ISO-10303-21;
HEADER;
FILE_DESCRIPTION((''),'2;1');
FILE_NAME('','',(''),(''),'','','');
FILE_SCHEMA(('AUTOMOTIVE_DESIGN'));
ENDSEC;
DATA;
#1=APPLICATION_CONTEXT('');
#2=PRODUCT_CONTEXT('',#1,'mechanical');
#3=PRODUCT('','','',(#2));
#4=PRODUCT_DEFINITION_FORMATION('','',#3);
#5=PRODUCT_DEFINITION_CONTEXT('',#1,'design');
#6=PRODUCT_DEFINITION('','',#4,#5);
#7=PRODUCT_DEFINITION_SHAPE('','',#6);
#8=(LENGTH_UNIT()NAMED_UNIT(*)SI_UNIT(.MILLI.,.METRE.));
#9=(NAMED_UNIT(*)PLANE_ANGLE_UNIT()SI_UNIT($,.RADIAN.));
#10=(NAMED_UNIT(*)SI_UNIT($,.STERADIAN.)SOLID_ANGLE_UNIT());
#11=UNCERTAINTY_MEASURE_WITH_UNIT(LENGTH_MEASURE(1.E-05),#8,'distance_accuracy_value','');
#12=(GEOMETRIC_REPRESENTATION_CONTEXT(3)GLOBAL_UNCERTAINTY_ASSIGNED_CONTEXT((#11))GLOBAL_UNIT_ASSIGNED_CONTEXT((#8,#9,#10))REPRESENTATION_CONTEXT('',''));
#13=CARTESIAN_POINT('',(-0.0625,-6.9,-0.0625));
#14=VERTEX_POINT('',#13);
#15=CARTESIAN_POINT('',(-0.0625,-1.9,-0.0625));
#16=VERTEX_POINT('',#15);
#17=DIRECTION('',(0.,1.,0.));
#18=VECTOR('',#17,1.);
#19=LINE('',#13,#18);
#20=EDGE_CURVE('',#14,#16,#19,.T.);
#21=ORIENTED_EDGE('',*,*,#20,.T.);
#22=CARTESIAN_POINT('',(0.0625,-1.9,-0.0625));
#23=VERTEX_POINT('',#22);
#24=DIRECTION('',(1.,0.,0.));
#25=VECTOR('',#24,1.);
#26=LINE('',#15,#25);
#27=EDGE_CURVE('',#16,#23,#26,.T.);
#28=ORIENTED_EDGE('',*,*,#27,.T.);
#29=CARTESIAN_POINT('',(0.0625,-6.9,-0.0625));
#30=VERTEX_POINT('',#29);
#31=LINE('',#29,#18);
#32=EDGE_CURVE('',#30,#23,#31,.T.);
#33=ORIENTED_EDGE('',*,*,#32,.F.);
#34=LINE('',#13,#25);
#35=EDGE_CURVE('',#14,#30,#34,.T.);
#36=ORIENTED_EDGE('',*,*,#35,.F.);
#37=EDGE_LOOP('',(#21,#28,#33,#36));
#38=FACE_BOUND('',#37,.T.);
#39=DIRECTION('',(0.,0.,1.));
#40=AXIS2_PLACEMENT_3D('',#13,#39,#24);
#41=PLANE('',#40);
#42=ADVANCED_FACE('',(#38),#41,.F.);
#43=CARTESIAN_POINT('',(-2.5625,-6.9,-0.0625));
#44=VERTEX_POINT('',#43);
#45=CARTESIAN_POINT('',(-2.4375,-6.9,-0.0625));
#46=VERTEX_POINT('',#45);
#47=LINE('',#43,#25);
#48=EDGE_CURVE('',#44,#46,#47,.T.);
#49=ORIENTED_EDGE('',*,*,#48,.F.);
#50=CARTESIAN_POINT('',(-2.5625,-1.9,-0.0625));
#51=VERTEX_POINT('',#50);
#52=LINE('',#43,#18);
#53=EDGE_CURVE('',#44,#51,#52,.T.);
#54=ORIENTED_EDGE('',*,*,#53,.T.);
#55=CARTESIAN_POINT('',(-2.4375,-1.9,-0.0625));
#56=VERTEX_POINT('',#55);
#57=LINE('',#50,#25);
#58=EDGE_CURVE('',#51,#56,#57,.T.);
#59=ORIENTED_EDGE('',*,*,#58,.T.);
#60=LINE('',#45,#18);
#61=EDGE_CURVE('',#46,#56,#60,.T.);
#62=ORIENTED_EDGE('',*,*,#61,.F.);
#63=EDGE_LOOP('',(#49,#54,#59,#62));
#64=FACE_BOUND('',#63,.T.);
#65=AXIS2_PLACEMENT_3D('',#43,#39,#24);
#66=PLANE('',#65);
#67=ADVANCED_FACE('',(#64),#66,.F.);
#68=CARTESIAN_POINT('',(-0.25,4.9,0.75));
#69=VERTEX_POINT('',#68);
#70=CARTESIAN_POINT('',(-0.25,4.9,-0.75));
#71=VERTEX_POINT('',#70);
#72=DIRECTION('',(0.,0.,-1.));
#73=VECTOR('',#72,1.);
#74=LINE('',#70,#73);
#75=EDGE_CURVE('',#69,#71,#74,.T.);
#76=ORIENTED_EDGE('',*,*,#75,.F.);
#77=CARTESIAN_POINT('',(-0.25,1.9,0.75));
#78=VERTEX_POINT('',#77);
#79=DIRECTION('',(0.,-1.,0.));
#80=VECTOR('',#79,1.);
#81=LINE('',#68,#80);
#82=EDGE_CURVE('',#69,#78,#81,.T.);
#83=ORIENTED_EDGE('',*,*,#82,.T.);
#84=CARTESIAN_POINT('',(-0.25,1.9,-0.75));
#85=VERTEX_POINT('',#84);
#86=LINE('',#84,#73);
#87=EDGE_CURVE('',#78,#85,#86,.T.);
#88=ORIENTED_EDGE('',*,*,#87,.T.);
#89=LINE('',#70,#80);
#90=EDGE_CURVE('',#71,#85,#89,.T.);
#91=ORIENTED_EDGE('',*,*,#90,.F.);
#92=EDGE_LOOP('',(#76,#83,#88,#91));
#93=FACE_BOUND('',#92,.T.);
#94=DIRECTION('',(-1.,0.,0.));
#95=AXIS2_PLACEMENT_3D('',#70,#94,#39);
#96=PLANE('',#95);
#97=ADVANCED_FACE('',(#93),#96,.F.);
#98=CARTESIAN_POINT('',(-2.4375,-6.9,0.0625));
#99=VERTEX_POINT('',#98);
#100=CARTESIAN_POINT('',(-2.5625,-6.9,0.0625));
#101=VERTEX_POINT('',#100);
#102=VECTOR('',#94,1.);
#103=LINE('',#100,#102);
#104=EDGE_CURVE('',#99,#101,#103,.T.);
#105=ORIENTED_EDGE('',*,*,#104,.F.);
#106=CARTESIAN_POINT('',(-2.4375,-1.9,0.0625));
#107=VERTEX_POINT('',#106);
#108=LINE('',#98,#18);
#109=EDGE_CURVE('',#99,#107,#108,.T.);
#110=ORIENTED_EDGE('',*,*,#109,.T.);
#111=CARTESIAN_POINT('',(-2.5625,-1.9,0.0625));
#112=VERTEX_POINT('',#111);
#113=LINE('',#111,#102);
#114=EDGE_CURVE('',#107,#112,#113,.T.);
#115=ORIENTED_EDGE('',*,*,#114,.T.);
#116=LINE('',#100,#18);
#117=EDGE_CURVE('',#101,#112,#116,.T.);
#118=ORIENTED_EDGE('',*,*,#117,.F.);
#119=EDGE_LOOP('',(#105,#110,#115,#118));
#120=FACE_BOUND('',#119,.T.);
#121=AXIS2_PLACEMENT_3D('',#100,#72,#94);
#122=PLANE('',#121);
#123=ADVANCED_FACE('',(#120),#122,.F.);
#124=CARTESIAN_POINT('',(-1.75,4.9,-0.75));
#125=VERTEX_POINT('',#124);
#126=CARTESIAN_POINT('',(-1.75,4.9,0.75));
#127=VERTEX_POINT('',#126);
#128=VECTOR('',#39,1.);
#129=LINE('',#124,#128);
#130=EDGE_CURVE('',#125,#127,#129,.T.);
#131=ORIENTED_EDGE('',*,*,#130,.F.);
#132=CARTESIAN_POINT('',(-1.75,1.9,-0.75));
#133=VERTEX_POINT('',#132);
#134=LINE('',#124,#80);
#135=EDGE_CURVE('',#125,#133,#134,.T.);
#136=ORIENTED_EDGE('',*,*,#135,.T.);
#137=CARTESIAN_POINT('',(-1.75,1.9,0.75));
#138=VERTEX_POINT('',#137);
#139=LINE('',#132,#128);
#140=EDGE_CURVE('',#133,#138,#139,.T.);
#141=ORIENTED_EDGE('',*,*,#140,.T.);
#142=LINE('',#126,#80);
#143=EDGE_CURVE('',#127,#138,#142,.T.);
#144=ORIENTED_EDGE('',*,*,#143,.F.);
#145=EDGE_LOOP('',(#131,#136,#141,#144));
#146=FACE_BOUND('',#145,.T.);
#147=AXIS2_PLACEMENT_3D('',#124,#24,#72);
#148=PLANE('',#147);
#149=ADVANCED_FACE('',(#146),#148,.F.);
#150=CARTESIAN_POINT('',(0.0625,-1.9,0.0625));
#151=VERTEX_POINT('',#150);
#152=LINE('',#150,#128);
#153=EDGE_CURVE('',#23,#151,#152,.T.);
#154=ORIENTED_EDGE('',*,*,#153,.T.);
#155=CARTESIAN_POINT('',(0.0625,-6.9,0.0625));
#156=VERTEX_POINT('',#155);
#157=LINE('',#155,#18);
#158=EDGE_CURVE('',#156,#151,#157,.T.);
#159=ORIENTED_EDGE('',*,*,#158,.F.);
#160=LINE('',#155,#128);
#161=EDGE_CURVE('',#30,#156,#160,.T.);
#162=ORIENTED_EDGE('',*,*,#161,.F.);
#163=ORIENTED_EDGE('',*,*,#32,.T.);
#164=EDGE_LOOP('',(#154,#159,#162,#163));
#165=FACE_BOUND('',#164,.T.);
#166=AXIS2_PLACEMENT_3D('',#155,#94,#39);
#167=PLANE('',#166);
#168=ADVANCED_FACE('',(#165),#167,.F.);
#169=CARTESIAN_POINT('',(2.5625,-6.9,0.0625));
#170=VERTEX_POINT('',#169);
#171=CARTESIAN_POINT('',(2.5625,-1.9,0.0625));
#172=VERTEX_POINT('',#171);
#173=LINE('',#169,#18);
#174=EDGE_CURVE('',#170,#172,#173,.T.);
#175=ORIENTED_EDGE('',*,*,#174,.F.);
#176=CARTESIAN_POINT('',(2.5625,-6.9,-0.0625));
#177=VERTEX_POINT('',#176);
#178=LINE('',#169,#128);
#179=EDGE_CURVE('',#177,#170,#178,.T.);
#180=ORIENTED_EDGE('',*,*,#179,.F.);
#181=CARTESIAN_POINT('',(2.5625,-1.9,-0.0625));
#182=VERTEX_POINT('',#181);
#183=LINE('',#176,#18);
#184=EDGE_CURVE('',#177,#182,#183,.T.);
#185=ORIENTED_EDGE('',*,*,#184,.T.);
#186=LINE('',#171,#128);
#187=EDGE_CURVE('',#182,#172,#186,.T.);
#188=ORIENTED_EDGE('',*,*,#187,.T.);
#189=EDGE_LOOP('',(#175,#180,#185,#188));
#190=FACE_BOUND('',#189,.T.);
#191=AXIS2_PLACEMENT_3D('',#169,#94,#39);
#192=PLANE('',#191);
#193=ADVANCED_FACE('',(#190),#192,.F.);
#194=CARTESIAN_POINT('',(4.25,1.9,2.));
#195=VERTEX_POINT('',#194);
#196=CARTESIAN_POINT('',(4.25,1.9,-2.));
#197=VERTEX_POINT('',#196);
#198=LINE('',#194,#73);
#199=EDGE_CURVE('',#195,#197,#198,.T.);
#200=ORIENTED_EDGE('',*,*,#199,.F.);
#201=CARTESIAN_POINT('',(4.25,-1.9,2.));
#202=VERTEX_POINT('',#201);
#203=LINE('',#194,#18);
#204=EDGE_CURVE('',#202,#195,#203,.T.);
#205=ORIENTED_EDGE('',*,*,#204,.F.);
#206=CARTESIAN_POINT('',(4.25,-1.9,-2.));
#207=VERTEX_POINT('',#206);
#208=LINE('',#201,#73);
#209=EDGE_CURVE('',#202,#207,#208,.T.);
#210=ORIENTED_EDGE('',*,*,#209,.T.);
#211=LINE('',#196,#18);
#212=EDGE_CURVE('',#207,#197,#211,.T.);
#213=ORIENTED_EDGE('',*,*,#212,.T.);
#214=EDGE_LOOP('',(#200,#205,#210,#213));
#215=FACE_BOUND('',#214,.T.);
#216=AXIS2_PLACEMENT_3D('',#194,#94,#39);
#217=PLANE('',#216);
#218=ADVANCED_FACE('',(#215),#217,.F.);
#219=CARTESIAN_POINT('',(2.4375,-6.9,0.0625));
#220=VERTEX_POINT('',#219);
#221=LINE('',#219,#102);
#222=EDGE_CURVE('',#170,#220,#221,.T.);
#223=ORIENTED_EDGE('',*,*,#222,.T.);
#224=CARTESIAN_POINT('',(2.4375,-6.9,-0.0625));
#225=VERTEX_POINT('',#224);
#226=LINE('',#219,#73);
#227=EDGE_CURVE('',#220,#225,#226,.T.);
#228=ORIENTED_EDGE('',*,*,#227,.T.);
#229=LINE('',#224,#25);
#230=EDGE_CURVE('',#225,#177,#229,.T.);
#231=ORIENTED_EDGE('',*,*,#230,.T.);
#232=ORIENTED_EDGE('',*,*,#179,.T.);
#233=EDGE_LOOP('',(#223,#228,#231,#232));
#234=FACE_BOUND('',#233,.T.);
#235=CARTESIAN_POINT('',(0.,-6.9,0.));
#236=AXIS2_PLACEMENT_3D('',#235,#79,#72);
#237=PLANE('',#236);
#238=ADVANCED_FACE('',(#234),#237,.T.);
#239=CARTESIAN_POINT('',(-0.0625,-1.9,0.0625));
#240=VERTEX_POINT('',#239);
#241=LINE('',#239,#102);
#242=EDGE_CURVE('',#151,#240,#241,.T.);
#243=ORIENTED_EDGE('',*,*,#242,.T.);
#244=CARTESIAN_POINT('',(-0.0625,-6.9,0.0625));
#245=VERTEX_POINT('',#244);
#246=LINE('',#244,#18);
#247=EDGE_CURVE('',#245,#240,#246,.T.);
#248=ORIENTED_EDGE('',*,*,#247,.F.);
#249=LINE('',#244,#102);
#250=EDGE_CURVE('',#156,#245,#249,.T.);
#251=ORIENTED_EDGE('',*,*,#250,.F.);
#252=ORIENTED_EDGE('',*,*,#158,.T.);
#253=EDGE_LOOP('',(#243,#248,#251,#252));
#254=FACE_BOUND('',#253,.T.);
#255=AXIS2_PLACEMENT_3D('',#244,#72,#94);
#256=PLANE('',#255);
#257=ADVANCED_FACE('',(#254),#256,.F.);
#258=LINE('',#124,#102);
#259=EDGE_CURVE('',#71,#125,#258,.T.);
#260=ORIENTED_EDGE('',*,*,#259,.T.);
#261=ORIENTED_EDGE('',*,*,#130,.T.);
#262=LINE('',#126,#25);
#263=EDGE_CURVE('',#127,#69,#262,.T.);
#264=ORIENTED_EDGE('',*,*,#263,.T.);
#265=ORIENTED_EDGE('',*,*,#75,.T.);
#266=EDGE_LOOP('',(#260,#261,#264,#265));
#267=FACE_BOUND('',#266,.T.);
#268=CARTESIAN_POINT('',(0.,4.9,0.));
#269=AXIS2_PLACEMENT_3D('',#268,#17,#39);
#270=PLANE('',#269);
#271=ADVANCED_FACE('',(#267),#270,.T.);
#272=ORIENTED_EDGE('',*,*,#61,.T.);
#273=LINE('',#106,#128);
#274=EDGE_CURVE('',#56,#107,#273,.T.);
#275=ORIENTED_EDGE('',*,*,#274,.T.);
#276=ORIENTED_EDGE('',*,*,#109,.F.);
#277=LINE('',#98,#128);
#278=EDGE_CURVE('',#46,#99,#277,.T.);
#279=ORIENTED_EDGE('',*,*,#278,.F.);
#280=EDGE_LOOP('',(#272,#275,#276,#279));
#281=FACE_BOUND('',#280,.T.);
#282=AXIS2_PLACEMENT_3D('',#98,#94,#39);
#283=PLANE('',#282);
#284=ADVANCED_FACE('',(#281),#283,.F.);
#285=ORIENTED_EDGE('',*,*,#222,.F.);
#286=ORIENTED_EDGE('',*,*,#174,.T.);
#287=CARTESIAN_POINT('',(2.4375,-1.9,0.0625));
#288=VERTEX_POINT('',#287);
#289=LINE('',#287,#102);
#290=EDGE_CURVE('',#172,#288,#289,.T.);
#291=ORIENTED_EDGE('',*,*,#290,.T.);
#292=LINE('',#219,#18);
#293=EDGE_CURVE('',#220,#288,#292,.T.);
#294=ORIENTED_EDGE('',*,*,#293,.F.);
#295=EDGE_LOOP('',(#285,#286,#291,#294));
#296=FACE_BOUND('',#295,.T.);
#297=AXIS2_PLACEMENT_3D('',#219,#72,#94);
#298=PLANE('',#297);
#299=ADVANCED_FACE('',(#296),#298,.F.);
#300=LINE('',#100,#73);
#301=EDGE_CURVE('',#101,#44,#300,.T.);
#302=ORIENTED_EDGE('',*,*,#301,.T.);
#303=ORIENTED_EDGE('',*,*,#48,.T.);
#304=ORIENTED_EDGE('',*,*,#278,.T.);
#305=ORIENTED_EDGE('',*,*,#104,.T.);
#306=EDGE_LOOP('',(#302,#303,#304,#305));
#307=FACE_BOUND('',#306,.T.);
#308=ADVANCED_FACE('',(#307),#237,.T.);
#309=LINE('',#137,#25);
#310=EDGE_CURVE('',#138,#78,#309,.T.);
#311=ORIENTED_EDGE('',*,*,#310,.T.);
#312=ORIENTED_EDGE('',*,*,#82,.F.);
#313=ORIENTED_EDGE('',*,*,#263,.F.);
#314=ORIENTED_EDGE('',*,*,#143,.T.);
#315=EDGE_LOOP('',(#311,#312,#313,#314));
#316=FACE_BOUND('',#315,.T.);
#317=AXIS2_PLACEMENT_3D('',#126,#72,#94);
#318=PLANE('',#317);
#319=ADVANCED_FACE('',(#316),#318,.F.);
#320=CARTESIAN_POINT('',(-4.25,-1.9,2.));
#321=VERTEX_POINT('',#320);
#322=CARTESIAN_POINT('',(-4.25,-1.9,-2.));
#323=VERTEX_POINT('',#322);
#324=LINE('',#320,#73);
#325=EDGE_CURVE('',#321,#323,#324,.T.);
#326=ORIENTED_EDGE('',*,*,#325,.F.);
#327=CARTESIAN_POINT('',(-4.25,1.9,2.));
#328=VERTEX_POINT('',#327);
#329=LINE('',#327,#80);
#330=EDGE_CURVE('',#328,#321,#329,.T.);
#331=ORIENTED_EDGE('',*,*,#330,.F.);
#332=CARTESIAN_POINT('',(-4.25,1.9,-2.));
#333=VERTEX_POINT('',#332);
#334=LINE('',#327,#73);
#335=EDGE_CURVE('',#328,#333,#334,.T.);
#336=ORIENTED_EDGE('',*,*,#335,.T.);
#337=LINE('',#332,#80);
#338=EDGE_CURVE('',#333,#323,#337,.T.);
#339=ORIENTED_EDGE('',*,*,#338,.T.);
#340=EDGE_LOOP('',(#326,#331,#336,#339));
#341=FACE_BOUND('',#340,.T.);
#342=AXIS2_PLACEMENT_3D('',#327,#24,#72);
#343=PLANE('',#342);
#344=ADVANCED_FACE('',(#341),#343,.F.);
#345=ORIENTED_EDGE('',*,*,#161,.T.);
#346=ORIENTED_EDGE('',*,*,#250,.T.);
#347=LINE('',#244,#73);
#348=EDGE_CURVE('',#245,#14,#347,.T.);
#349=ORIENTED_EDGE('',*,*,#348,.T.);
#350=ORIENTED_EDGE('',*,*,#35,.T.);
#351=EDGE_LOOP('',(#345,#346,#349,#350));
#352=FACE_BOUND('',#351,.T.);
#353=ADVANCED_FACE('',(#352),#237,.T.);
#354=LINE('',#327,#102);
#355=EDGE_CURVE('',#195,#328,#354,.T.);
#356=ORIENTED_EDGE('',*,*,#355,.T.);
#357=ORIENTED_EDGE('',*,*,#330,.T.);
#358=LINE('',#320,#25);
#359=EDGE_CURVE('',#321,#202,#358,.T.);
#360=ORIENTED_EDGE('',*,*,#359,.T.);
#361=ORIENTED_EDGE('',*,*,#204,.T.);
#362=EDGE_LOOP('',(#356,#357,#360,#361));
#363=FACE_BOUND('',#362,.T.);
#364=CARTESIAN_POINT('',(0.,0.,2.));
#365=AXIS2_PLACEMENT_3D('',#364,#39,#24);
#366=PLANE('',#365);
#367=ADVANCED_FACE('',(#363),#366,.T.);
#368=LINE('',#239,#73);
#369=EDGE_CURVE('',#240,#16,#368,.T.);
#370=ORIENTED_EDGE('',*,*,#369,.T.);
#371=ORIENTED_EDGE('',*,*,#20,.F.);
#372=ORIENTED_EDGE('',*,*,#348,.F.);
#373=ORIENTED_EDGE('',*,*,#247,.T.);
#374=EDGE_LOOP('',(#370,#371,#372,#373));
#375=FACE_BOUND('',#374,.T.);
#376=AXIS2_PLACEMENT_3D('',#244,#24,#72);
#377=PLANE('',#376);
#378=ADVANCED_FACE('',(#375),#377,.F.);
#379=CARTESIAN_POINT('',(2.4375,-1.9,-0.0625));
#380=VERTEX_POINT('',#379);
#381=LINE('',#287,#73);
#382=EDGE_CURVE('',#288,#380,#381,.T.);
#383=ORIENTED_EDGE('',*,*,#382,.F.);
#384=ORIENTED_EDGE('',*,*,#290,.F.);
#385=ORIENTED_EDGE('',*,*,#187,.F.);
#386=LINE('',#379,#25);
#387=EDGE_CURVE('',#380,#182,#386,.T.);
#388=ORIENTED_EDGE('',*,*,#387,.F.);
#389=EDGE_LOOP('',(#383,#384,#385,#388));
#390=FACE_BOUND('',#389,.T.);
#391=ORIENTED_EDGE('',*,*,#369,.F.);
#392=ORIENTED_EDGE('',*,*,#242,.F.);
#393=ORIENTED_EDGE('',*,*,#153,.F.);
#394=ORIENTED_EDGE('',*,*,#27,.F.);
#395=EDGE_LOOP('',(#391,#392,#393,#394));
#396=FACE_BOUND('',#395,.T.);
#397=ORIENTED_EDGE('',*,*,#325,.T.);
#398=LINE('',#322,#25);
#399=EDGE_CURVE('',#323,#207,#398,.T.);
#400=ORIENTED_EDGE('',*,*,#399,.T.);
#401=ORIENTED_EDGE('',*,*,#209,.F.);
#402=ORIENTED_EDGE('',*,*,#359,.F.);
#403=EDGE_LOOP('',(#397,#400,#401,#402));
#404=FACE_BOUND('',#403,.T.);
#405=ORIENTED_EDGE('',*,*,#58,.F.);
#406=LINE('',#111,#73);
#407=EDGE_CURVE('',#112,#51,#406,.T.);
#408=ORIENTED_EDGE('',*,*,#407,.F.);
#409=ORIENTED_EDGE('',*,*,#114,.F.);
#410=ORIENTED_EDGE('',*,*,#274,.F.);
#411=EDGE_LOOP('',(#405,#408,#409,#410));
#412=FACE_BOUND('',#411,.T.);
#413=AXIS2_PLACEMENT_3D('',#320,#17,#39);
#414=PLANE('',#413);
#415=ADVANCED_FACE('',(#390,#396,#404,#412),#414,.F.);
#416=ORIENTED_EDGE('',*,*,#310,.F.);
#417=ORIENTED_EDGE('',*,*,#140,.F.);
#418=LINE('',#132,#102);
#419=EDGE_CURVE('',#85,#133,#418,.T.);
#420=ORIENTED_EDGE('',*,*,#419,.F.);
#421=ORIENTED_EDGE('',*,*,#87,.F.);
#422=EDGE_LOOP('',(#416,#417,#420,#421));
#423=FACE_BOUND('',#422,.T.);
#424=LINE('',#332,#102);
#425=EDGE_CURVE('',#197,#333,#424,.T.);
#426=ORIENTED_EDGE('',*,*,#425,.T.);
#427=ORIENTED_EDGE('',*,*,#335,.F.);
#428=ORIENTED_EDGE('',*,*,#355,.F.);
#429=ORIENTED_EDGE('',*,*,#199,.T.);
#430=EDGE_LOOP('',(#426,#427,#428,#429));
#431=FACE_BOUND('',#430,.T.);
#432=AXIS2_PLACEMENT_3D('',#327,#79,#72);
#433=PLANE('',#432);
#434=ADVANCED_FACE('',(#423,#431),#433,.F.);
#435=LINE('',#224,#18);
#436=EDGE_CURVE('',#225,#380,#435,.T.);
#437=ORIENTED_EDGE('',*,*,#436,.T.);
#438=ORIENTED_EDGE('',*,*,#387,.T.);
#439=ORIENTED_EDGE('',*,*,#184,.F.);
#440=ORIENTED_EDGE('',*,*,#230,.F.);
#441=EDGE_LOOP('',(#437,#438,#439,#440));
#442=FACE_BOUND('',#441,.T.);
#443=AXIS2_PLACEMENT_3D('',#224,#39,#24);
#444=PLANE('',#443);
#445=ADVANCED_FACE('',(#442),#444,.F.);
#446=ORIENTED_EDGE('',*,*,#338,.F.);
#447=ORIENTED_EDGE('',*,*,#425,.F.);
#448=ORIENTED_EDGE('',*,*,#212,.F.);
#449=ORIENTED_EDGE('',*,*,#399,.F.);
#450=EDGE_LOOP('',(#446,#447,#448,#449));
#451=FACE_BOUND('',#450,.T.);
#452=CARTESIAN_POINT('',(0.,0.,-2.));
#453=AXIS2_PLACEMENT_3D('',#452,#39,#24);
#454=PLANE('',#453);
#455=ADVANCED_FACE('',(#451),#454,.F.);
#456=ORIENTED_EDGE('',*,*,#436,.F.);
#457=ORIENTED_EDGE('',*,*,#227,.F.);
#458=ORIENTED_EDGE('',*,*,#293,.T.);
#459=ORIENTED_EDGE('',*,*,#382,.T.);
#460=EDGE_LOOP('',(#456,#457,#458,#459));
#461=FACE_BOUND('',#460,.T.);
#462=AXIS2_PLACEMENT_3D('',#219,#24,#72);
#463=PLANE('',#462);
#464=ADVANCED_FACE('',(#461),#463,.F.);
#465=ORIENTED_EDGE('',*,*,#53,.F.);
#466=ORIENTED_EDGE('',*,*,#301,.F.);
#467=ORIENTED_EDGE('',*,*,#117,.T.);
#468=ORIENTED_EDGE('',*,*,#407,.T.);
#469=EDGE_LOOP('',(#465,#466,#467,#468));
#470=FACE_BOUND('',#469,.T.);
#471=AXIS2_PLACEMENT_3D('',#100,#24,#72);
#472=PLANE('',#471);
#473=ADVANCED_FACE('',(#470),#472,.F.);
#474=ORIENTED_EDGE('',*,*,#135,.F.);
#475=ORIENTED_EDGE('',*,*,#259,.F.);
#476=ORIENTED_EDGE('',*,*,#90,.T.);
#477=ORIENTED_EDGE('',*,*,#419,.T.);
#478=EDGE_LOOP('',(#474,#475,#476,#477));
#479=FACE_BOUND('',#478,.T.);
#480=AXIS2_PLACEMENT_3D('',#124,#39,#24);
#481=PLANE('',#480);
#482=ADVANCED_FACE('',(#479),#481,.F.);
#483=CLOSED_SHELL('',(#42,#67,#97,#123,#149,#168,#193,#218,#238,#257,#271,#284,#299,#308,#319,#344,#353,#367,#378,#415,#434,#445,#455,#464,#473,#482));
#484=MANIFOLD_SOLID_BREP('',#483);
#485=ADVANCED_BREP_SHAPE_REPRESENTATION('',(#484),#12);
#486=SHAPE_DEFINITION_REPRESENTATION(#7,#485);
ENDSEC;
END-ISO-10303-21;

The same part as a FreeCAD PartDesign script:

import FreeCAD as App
import Part
import Sketcher

V = App.Vector
Q = App.Units.Quantity


def add_polygon(sketch, points):
    """Adds a closed chain of lines whose ends are joined by coincident constraints."""
    first, n = sketch.GeometryCount, len(points)
    for a, b in zip(points, points[1:] + points[:1]):
        sketch.addGeometry(Part.LineSegment(App.Vector(*a, 0), App.Vector(*b, 0)), False)
    for i in range(n):
        sketch.addConstraint(Sketcher.Constraint("Coincident", first + i, 2, first + (i + 1) % n, 1))

doc = App.newDocument("Part")
params = doc.addObject("Spreadsheet::Sheet", "Params")
for row, (alias, value) in enumerate([
    ("sketch1_width", "8.5 mm"),
    ("sketch1_height", "3.8 mm"),
    ("pad1_length", "4 mm"),
    ("sketch2_width", "1.5 mm"),
    ("pad2_length", "3 mm"),
    ("pad3_length", "5 mm"),
], start=1):
    params.set(f"A{row}", alias)
    params.set(f"B{row}", "=" + value)
    params.setAlias(f"B{row}", alias)

body = doc.addObject("PartDesign::Body", "Body")

sketch1 = body.newObject("Sketcher::SketchObject", "Sketch")
sketch1.AttachmentSupport = (doc.getObject("XY_Plane"), [""])
sketch1.MapMode = "FlatFace"
add_polygon(sketch1, [(-4.2, 1.9), (-4.2, -1.9), (4.2, -1.9), (4.2, 1.9)])
sketch1.addConstraint([
    Sketcher.Constraint("Vertical", 0),
    Sketcher.Constraint("Horizontal", 1),
    Sketcher.Constraint("Vertical", 2),
    Sketcher.Constraint("Horizontal", 3),
    Sketcher.Constraint("Symmetric", 0, 2, 2, 2, -1, 1),
    Sketcher.Constraint("DistanceX", 1, 1, 1, 2, Q("8.5 mm")),
    Sketcher.Constraint("DistanceY", 0, 2, 0, 1, Q("3.8 mm")),
])
sketch1.setExpression("Constraints[9]", "Params.sketch1_width")
sketch1.setExpression("Constraints[10]", "Params.sketch1_height")
pad1 = body.newObject("PartDesign::Pad", "Pad")
pad1.Profile = sketch1
pad1.setExpression("Length", "Params.pad1_length")
pad1.Midplane = True

sketch2 = body.newObject("Sketcher::SketchObject", "Sketch001")
sketch2.AttachmentSupport = (doc.getObject("XZ_Plane"), [""])
sketch2.MapMode = "FlatFace"
sketch2.AttachmentOffset = App.Placement(V(0, 0, -1.9), App.Rotation())
add_polygon(sketch2, [(-1.8, -0.8), (-1.8, 0.8), (-0.2, 0.8), (-0.2, -0.8)])
sketch2.addConstraint([
    Sketcher.Constraint("Vertical", 0),
    Sketcher.Constraint("Horizontal", 1),
    Sketcher.Constraint("Vertical", 2),
    Sketcher.Constraint("Horizontal", 3),
    Sketcher.Constraint("Equal", 3, 0),
    Sketcher.Constraint("DistanceX", 1, 1, 1, 2, Q("1.5 mm")),
    Sketcher.Constraint("DistanceX", 0, 2, -1, 1, Q("1.75 mm")),
    Sketcher.Constraint("DistanceY", -1, 1, 0, 2, Q("0.75 mm")),
])
sketch2.setExpression("Constraints[9]", "Params.sketch2_width")
pad2 = body.newObject("PartDesign::Pad", "Pad001")
pad2.Profile = sketch2
pad2.setExpression("Length", "Params.pad2_length")
pad2.Reversed = True

sketch3 = body.newObject("Sketcher::SketchObject", "Sketch002")
sketch3.AttachmentSupport = (doc.getObject("XZ_Plane"), [""])
sketch3.MapMode = "FlatFace"
sketch3.AttachmentOffset = App.Placement(V(0, 0, 1.9), App.Rotation())
add_polygon(sketch3, [(-0.06, 0.06), (-0.06, -0.06), (0.06, -0.06), (0.06, 0.06)])
add_polygon(sketch3, [(-2.56, 0.06), (-2.56, -0.06), (-2.44, -0.06), (-2.44, 0.06)])
add_polygon(sketch3, [(2.44, 0.06), (2.44, -0.06), (2.56, -0.06), (2.56, 0.06)])
sketch3.addConstraint([
    Sketcher.Constraint("Vertical", 0),
    Sketcher.Constraint("Horizontal", 1),
    Sketcher.Constraint("Vertical", 2),
    Sketcher.Constraint("Horizontal", 3),
    Sketcher.Constraint("Vertical", 4),
    Sketcher.Constraint("Horizontal", 5),
    Sketcher.Constraint("Vertical", 6),
    Sketcher.Constraint("Horizontal", 7),
    Sketcher.Constraint("Vertical", 8),
    Sketcher.Constraint("Horizontal", 9),
    Sketcher.Constraint("Vertical", 10),
    Sketcher.Constraint("Horizontal", 11),
    Sketcher.Constraint("Symmetric", 0, 2, 2, 2, -1, 1),
    Sketcher.Constraint("Symmetric", 6, 2, 8, 2, -1, 1),
    Sketcher.Constraint("Symmetric", 4, 2, 10, 2, -1, 1),
    Sketcher.Constraint("Horizontal", 1, 2, 4, 2),
    Sketcher.Constraint("Horizontal", 3, 2, 6, 2),
    Sketcher.Constraint("Equal", 3, 5),
    Sketcher.Constraint("Equal", 11, 0),
    Sketcher.Constraint("DistanceX", 4, 2, 0, 2, Q("2.5 mm")),
    Sketcher.Constraint("DistanceX", 1, 1, 1, 2, Q("0.125 mm")),
])
pad3 = body.newObject("PartDesign::Pad", "Pad002")
pad3.Profile = sketch3
pad3.setExpression("Length", "Params.pad3_length")

doc.recompute()
